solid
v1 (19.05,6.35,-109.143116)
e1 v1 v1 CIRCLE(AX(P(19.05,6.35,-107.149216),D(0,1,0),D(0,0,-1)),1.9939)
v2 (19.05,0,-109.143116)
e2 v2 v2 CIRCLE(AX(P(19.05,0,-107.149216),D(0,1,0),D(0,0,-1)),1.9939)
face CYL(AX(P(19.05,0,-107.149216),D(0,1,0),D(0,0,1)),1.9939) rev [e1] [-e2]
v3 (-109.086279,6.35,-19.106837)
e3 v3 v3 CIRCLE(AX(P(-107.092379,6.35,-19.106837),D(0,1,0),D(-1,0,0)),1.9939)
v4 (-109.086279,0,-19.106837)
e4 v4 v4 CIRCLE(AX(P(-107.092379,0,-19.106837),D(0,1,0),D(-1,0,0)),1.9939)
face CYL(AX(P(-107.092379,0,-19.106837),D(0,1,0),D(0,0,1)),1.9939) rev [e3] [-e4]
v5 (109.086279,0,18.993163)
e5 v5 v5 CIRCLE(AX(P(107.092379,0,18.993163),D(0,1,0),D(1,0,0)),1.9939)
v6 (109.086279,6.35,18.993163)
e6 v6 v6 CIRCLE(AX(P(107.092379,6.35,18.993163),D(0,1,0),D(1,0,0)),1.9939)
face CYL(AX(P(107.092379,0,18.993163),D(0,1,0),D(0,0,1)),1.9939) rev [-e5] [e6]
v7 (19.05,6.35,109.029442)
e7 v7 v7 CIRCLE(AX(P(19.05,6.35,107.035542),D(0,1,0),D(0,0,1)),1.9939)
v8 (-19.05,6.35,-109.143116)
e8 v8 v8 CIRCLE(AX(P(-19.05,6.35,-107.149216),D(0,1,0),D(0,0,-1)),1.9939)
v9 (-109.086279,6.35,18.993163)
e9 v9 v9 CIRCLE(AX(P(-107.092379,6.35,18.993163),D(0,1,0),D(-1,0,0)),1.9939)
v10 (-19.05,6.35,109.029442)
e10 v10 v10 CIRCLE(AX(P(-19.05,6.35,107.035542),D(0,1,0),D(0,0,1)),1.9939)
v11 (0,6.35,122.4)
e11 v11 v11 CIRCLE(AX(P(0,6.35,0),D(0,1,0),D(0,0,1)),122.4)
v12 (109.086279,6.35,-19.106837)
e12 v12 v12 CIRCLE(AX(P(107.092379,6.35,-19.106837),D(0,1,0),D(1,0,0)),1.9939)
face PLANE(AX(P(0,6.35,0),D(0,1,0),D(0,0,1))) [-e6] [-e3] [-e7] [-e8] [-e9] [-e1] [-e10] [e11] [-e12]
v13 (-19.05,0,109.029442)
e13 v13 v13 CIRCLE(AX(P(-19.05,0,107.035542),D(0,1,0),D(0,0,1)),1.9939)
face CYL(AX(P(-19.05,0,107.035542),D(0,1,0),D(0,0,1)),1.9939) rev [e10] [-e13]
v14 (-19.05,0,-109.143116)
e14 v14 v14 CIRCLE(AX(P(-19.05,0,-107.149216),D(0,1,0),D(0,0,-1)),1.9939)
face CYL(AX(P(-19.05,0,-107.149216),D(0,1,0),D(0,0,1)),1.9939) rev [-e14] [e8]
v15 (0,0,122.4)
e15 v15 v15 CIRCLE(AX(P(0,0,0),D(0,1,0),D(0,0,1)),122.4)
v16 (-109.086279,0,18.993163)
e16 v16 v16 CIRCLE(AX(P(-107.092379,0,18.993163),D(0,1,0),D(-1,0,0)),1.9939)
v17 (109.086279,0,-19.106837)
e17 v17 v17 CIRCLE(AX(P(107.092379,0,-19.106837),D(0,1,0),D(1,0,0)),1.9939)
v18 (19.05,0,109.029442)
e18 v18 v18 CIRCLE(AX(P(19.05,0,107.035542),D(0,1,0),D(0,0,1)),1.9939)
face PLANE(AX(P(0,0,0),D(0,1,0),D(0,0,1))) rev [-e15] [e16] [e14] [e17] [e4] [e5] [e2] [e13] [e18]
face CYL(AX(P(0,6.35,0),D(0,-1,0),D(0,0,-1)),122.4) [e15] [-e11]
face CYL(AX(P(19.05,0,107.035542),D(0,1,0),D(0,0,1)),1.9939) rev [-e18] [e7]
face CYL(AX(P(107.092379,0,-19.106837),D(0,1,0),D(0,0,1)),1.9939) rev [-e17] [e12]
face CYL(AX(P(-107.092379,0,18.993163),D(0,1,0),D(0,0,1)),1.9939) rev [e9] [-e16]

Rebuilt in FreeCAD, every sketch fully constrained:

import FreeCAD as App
import Part
import Sketcher
Q = App.Units.Quantity

doc = App.newDocument("Part")
params = doc.addObject("Spreadsheet::Sheet", "Params")
for row, (alias, value) in enumerate([
    ("pad1_length", "0.25 in"),
    ("sketch2_diameter", "0.157 in"),
], start=1):
    params.set(f"A{row}", alias)
    params.set(f"B{row}", "=" + value)
    params.setAlias(f"B{row}", alias)

body = doc.addObject("PartDesign::Body", "Body")

sketch1 = body.newObject("Sketcher::SketchObject", "Sketch")
sketch1.AttachmentSupport = (doc.getObject("XZ_Plane"), [""])
sketch1.MapMode = "FlatFace"
sketch1.addGeometry(Part.Circle(App.Vector(0, 0, 0), App.Vector(0, 0, 1), 122), False)
sketch1.addConstraint([
    Sketcher.Constraint("Coincident", 0, 3, -1, 1),
    Sketcher.Constraint("Diameter", 0, Q("244.8 mm")),
])
pad1 = body.newObject("PartDesign::Pad", "Pad")
pad1.Profile = sketch1
pad1.setExpression("Length", "Params.pad1_length")
pad1.Reversed = True

sketch2 = body.newObject("Sketcher::SketchObject", "Sketch001")
sketch2.AttachmentSupport = (doc.getObject("XZ_Plane"), [""])
sketch2.MapMode = "FlatFace"
sketch2.AttachmentOffset = App.Placement(App.Vector(0, 0, -0.25 * 25.4), App.Rotation())
sketch2.addGeometry([
    Part.Circle(App.Vector(-19.1, 107, 0), App.Vector(0, 0, 1), 2),
    Part.Circle(App.Vector(19.1, 107, 0), App.Vector(0, 0, 1), 2),
], False)
sketch2.addConstraint([
    Sketcher.Constraint("Equal", 0, 1),
    Sketcher.Constraint("Symmetric", 0, 3, 1, 3, -2),
    Sketcher.Constraint("Diameter", 0, Q("0.157 in")),
    Sketcher.Constraint("DistanceX", 0, 3, 1, 3, Q("1.5 in")),
    Sketcher.Constraint("DistanceY", -1, 1, 0, 3, Q("107.035542 mm")),
])
sketch2.setExpression("Constraints[2]", "Params.sketch2_diameter")
pocket1 = body.newObject("PartDesign::Pocket", "Pocket")
pocket1.Profile = sketch2
pocket1.Type = "ThroughAll"
pocket1.Reversed = True
doc.recompute()

datumline = body.newObject("PartDesign::Line", "DatumLine")
datumline.Placement = App.Placement(App.Vector(0, 0, -0.056837), App.Rotation(App.Vector(0, 0, 1), App.Vector(0, 1, 0)))
polarpattern = body.newObject("PartDesign::PolarPattern", "PolarPattern")
polarpattern.Originals = [pocket1]
polarpattern.Axis = (datumline, [""])
polarpattern.Angle = 360
polarpattern.Occurrences = 4
body.Tip = polarpattern

doc.recompute()
